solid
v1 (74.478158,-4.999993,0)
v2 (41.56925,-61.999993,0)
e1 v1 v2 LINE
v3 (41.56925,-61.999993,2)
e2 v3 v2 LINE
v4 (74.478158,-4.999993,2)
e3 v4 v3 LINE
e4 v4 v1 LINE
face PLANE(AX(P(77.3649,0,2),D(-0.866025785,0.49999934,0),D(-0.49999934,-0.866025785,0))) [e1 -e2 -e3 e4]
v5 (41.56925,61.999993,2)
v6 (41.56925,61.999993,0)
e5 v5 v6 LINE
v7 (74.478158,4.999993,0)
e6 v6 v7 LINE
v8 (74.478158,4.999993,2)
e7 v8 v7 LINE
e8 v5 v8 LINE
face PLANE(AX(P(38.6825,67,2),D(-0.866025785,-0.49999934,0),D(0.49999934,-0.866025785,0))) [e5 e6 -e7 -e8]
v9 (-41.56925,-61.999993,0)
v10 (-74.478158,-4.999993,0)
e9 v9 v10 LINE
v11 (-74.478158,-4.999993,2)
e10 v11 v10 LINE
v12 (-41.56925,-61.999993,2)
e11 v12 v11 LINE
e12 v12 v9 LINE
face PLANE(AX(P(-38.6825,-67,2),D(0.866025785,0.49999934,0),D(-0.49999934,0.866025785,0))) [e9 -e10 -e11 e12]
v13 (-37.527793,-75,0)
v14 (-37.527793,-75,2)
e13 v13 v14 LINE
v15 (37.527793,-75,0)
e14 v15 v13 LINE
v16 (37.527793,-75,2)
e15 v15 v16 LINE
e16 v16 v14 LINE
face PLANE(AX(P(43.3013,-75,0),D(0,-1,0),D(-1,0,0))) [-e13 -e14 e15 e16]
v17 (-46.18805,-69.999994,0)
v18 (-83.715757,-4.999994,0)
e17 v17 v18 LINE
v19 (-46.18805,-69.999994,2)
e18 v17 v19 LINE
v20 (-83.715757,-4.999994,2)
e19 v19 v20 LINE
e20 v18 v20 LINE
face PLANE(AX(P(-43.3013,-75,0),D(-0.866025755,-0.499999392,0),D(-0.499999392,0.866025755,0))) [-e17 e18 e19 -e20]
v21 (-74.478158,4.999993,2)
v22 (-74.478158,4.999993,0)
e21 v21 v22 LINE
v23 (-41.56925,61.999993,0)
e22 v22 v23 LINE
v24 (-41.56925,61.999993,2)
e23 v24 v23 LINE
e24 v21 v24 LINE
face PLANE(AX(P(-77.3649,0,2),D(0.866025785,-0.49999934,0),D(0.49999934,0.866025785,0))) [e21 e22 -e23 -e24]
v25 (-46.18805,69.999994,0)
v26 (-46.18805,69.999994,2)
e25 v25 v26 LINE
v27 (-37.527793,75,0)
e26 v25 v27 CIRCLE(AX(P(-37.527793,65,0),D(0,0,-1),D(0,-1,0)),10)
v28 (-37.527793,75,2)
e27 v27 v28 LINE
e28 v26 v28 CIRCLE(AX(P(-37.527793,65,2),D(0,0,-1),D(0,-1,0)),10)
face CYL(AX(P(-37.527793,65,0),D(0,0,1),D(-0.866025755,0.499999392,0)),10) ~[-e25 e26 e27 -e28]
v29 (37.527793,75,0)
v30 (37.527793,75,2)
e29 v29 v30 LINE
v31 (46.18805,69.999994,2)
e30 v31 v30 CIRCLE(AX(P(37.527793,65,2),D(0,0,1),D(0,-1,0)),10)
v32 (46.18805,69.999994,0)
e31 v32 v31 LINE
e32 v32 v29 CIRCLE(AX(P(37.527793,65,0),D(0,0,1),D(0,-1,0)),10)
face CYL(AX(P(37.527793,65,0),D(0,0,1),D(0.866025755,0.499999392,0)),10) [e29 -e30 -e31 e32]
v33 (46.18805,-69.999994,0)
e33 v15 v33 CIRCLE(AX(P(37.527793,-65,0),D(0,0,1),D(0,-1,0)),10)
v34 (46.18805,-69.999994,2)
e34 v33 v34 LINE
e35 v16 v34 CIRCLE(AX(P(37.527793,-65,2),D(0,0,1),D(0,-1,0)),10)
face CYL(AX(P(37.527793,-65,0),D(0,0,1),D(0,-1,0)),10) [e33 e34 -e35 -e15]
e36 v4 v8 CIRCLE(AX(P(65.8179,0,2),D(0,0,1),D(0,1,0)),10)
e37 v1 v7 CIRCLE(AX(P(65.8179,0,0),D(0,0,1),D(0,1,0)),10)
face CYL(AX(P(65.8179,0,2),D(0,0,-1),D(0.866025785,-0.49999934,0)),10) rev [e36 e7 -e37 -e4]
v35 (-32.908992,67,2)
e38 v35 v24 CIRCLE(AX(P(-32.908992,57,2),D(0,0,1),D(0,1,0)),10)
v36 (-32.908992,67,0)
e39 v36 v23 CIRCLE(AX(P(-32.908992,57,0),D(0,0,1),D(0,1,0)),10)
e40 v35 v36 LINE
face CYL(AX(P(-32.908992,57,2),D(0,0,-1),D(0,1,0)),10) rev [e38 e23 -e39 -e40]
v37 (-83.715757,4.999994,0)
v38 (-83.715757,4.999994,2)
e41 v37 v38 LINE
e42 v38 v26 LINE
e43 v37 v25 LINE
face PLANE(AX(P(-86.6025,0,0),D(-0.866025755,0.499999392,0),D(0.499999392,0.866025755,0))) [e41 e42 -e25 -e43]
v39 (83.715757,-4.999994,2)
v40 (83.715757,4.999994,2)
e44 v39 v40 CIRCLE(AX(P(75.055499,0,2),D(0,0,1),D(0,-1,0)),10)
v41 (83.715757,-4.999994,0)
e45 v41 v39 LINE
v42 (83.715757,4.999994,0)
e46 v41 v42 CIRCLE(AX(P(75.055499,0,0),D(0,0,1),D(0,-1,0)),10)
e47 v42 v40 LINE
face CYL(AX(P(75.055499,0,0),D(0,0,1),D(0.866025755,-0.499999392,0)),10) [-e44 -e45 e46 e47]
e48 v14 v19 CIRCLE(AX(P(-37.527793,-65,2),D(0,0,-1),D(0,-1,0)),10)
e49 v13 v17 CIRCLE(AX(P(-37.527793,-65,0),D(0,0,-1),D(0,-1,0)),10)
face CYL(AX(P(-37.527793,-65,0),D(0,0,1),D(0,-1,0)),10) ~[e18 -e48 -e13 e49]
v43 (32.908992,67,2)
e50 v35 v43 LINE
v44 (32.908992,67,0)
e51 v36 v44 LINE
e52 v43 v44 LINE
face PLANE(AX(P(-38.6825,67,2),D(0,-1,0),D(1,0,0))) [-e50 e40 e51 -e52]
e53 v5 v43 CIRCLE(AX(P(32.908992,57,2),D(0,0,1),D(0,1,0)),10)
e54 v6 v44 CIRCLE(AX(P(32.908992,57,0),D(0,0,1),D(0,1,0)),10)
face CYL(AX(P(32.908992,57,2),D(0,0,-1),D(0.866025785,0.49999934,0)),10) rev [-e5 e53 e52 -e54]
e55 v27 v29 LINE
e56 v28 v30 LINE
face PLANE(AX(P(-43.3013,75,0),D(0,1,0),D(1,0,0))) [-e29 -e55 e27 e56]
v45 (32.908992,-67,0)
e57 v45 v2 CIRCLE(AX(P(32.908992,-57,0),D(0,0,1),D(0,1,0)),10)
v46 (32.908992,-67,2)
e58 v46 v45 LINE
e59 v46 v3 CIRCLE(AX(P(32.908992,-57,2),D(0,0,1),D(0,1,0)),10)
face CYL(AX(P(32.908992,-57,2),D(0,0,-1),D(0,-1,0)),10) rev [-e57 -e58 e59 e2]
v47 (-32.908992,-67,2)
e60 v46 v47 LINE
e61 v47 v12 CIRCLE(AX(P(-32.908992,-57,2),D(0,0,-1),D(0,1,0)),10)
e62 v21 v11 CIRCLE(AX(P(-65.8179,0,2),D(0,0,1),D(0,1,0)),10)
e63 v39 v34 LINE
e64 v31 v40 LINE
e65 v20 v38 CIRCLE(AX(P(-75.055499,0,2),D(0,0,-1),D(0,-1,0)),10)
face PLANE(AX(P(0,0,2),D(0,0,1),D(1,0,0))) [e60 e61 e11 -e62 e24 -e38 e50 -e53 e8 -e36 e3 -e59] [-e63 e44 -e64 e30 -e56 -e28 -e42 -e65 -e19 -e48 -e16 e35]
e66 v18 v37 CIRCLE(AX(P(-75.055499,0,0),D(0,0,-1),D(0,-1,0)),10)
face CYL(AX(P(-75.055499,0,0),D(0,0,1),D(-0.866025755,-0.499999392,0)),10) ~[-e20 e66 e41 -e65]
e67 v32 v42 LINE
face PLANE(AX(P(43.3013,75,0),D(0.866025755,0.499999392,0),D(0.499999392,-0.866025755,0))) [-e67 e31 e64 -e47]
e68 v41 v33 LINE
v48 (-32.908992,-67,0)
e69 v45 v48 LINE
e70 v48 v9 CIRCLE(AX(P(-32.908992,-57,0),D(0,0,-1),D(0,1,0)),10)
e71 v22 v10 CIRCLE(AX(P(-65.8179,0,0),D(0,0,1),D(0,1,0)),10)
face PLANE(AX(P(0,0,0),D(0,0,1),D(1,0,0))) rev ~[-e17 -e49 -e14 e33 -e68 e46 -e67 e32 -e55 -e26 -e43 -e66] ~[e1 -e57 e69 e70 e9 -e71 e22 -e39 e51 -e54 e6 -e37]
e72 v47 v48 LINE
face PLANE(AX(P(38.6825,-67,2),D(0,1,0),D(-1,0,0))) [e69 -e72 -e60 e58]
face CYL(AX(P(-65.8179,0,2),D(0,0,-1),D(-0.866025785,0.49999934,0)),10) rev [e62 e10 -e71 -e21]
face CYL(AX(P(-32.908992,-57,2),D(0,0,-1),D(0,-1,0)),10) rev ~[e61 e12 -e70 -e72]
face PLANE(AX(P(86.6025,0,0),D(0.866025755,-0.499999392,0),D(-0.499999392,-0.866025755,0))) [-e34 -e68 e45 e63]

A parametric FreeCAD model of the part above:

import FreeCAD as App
import Part
import Sketcher
Q = App.Units.Quantity


def edges_at(feature, points):
    """Names of the edges that pass closest to the given points."""
    edges = feature.Shape.Edges
    near = lambda p: min(range(len(edges)), key=lambda i: edges[i].distToShape(Part.Vertex(*p))[0])
    return sorted({f"Edge{near(p) + 1}" for p in points})

doc = App.newDocument("Part")
body = doc.addObject("PartDesign::Body", "Body")

sketch1 = doc.addObject("Sketcher::SketchObject", "Sketch")
body.addObject(sketch1)
sketch1.AttachmentSupport = (doc.XY_Plane, [""])
sketch1.MapMode = "FlatFace"
sketch1.addGeometry([
    Part.LineSegment(App.Vector(-43, -75, 0), App.Vector(43, -75, 0)),
    Part.LineSegment(App.Vector(43, -75, 0), App.Vector(87, 0, 0)),
    Part.LineSegment(App.Vector(87, 0, 0), App.Vector(43, 75, 0)),
    Part.LineSegment(App.Vector(43, 75, 0), App.Vector(-43, 75, 0)),
    Part.LineSegment(App.Vector(-43, 75, 0), App.Vector(-87, 0, 0)),
    Part.LineSegment(App.Vector(-87, 0, 0), App.Vector(-43, -75, 0)),
], False)
sketch1.addConstraint([
    Sketcher.Constraint("Coincident", 0, 2, 1, 1),
    Sketcher.Constraint("Coincident", 1, 2, 2, 1),
    Sketcher.Constraint("Coincident", 2, 2, 3, 1),
    Sketcher.Constraint("Coincident", 3, 2, 4, 1),
    Sketcher.Constraint("Coincident", 4, 2, 5, 1),
    Sketcher.Constraint("Coincident", 5, 2, 0, 1),
    Sketcher.Constraint("Horizontal", 0),
    Sketcher.Constraint("Horizontal", 3),
    Sketcher.Constraint("Symmetric", 0, 2, 3, 2, -1, 1),
    Sketcher.Constraint("Symmetric", 1, 2, 4, 2, -1, 1),
    Sketcher.Constraint("PointOnObject", 1, 2, -1),
    Sketcher.Constraint("Parallel", 2, 5),
    Sketcher.Constraint("Vertical", 0, 2, 2, 2),
    Sketcher.Constraint("DistanceY", 0, 2, 2, 2, 150.0),
    Sketcher.Constraint("Angle", 1, Q("60 deg")),
    Sketcher.Constraint("DistanceX", 0, 1, 0, 2, 86.6026),
])
pad1 = doc.addObject("PartDesign::Pad", "Pad")
body.addObject(pad1)
pad1.Profile = sketch1
pad1.Length = 2

sketch2 = doc.addObject("Sketcher::SketchObject", "Sketch001")
body.addObject(sketch2)
sketch2.AttachmentSupport = (doc.XY_Plane, [""])
sketch2.MapMode = "FlatFace"
sketch2.AttachmentOffset = App.Placement(App.Vector(0, 0, 2), App.Rotation())
sketch2.addGeometry([
    Part.LineSegment(App.Vector(-77, 0, 0), App.Vector(-39, -67, 0)),
    Part.LineSegment(App.Vector(-39, -67, 0), App.Vector(39, -67, 0)),
    Part.LineSegment(App.Vector(39, -67, 0), App.Vector(77, 0, 0)),
    Part.LineSegment(App.Vector(77, 0, 0), App.Vector(39, 67, 0)),
    Part.LineSegment(App.Vector(39, 67, 0), App.Vector(-39, 67, 0)),
    Part.LineSegment(App.Vector(-39, 67, 0), App.Vector(-77, 0, 0)),
], False)
sketch2.addConstraint([
    Sketcher.Constraint("Coincident", 0, 2, 1, 1),
    Sketcher.Constraint("Coincident", 1, 2, 2, 1),
    Sketcher.Constraint("Coincident", 2, 2, 3, 1),
    Sketcher.Constraint("Coincident", 3, 2, 4, 1),
    Sketcher.Constraint("Coincident", 4, 2, 5, 1),
    Sketcher.Constraint("Coincident", 5, 2, 0, 1),
    Sketcher.Constraint("Horizontal", 1),
    Sketcher.Constraint("Horizontal", 4),
    Sketcher.Constraint("Symmetric", 0, 2, 3, 2, -1, 1),
    Sketcher.Constraint("Symmetric", 2, 2, 5, 2, -1, 1),
    Sketcher.Constraint("PointOnObject", 2, 2, -1),
    Sketcher.Constraint("Parallel", 2, 5),
    Sketcher.Constraint("Vertical", 1, 2, 3, 2),
    Sketcher.Constraint("Angle", 0, Q("-60 deg")),
    Sketcher.Constraint("DistanceY", 0, 2, -1, 1, 67.0),
    Sketcher.Constraint("DistanceX", 1, 1, 1, 2, 77.365),
])
pocket1 = doc.addObject("PartDesign::Pocket", "Pocket")
body.addObject(pocket1)
pocket1.Profile = sketch2
pocket1.Length = 7
doc.recompute()

fillet = doc.addObject("PartDesign::Fillet", "Fillet")
body.addObject(fillet)
fillet.Base = (pocket1, edges_at(pocket1, [
    (38.682, -67, 1),
    (77.365, 0, 1),
    (38.682, 67, 1),
    (-38.682, 67, 1),
    (-77.365, 0, 1),
    (-38.682, -67, 1),
]))
fillet.Radius = 10
doc.recompute()

fillet2 = doc.addObject("PartDesign::Fillet", "Fillet001")
body.addObject(fillet2)
fillet2.Base = (fillet, edges_at(fillet, [
    (-43.301, 75, 1),
    (43.301, 75, 1),
    (86.603, 0, 1),
    (43.301, -75, 1),
    (-43.301, -75, 1),
    (-86.603, 0, 1),
]))
fillet2.Radius = 10

doc.recompute()
